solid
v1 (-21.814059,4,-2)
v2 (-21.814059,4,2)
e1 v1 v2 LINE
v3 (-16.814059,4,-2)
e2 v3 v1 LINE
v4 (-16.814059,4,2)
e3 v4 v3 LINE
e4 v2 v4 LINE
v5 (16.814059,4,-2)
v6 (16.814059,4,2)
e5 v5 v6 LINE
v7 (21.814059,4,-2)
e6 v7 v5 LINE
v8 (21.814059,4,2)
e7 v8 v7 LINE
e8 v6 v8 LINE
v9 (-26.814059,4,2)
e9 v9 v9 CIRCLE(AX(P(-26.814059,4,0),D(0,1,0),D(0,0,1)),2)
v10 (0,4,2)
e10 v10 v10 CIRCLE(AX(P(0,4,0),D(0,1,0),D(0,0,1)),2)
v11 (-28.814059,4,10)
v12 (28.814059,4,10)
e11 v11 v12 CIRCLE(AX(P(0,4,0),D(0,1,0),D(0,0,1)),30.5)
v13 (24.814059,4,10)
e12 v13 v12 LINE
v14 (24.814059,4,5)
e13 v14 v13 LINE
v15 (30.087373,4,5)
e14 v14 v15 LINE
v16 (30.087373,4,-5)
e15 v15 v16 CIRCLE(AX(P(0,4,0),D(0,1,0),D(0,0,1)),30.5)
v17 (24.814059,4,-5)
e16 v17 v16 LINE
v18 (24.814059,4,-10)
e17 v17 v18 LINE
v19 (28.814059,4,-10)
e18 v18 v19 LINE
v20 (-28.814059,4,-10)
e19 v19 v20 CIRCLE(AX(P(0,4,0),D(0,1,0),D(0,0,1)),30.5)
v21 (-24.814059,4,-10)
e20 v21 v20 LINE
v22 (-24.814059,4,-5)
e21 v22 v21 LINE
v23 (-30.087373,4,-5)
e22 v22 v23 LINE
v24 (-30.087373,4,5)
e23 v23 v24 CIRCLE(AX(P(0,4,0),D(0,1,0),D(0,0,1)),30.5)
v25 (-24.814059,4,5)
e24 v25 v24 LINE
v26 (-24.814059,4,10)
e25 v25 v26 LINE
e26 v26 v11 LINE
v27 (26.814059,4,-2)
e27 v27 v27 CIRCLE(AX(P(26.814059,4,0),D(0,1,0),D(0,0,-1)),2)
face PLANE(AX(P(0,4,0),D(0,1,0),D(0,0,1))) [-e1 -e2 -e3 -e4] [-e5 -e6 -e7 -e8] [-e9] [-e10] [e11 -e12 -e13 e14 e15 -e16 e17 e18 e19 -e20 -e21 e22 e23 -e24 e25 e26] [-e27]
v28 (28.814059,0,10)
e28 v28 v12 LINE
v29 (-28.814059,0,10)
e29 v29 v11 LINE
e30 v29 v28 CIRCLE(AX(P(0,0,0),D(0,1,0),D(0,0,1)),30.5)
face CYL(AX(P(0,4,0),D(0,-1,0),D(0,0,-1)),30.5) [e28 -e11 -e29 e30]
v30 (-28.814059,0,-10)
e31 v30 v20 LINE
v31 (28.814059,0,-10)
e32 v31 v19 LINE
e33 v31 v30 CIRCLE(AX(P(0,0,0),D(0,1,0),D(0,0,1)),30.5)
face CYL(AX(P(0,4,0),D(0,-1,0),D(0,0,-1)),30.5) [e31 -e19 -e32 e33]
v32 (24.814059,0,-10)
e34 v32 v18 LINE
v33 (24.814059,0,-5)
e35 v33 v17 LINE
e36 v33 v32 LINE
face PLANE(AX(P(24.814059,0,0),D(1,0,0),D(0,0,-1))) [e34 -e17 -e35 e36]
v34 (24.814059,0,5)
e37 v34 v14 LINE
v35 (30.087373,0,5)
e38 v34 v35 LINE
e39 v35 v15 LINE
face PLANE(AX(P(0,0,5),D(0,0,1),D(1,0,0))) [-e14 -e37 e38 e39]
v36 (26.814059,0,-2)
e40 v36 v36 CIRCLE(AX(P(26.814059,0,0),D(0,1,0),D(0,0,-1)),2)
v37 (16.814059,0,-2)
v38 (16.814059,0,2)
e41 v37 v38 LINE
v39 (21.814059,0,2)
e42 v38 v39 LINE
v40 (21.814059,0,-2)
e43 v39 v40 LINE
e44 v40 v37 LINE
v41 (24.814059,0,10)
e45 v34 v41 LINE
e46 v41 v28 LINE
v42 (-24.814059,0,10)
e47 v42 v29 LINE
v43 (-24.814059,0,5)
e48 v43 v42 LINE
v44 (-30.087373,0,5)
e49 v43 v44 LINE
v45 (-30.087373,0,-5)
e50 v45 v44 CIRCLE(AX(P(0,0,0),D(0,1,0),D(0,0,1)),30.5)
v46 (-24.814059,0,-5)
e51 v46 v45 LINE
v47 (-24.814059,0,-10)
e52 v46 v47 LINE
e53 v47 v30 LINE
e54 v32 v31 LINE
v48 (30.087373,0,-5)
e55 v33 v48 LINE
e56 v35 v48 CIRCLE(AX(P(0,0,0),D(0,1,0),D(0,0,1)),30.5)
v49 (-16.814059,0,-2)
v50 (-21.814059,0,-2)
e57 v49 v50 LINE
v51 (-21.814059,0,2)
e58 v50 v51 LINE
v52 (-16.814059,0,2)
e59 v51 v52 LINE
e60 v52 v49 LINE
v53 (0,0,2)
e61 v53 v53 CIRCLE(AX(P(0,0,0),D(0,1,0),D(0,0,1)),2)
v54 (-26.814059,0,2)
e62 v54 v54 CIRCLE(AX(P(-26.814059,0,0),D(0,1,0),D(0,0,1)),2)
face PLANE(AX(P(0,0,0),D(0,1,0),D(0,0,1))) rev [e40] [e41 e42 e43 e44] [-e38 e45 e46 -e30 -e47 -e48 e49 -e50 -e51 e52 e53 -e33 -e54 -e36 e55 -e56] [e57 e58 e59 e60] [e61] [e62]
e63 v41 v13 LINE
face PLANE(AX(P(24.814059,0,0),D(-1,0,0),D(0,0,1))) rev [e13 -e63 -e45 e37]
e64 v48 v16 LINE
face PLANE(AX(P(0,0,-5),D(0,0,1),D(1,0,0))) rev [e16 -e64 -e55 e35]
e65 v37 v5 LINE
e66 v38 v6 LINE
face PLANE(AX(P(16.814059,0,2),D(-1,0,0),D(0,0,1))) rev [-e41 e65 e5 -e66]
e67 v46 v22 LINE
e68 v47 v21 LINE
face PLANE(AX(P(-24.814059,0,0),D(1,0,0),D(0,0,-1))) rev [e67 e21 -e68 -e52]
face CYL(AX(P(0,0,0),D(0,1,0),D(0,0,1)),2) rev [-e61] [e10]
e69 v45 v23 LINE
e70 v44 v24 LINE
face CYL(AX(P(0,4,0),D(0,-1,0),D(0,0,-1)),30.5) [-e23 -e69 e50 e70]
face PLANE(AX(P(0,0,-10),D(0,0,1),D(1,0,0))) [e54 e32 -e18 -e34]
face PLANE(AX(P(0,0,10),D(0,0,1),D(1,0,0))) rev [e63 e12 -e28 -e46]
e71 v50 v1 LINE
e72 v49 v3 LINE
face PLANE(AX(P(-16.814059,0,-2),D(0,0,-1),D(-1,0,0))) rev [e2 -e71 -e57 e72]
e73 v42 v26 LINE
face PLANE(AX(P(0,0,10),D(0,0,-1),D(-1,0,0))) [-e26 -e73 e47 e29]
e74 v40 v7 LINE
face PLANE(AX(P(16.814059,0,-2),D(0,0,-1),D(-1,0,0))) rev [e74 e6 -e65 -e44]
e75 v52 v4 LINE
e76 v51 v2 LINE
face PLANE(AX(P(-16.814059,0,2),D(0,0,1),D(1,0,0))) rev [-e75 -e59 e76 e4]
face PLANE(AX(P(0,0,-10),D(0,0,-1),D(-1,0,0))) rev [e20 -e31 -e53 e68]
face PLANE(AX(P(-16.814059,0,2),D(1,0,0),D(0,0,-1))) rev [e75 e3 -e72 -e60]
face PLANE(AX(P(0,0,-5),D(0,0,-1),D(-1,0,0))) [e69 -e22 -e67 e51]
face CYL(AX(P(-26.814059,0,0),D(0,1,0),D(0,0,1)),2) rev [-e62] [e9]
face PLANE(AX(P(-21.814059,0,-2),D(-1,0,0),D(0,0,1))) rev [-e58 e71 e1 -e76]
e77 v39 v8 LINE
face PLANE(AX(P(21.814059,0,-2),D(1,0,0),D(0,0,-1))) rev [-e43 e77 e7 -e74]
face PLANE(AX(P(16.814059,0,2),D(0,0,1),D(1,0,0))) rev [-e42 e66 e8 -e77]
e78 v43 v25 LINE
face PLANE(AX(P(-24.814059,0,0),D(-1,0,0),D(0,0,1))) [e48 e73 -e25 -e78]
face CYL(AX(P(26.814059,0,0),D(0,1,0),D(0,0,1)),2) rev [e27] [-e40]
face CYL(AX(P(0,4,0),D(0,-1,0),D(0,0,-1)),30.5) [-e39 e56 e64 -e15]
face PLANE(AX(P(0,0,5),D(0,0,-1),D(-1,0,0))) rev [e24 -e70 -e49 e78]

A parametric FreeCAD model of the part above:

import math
import FreeCAD as App
import Part
import Sketcher
from FreeCAD import Vector

doc = App.newDocument("Part")
body = doc.addObject("PartDesign::Body", "Body")

# Sketch on XZ plane
sketch1 = body.newObject("Sketcher::SketchObject", "Sketch")
sketch1.AttachmentSupport = (doc.getObject("XZ_Plane"), [""])
sketch1.MapMode = "FlatFace"
sketch1.addGeometry(Part.Circle(Vector(0, 0, 0), Vector(0, 0, 1), 30), False)
sketch1.addConstraint([
    Sketcher.Constraint("Coincident", 0, 3, -1, 1),
    Sketcher.Constraint("Diameter", 0, 61.0),
])
pad1 = body.newObject("PartDesign::Pad", "Pad")
pad1.Profile = sketch1
pad1.Length = 4
pad1.Reversed = True

# Sketch on XZ plane
sketch2 = body.newObject("Sketcher::SketchObject", "Sketch001")
sketch2.AttachmentSupport = (doc.getObject("XZ_Plane"), [""])
sketch2.MapMode = "FlatFace"
sketch2.AttachmentOffset = App.Placement(Vector(0, 0, -4), App.Rotation())
sketch2.addGeometry(Part.Circle(Vector(0, 0, 0), Vector(0, 0, 1), 2), False)
sketch2.addConstraint([
    Sketcher.Constraint("Coincident", 0, 3, -1, 1),
    Sketcher.Constraint("Diameter", 0, 4.0),
])
pocket1 = body.newObject("PartDesign::Pocket", "Pocket")
pocket1.Profile = sketch2
pocket1.Length = 4
pocket1.Reversed = True

# Sketch on XZ plane
sketch3 = body.newObject("Sketcher::SketchObject", "Sketch002")
sketch3.AttachmentSupport = (doc.getObject("XZ_Plane"), [""])
sketch3.MapMode = "FlatFace"
sketch3.addGeometry([
    Part.ArcOfCircle(Part.Circle(Vector(0, 0, 0), Vector(0, 0, 1), 30.5), math.radians(-19.14), math.radians(-9.44)),  # 0
    Part.LineSegment(Vector(28.8, -10, 0), Vector(24.8, -10, 0)),  # 1
    Part.LineSegment(Vector(24.8, -10, 0), Vector(24.8, -5, 0)),  # 2
    Part.LineSegment(Vector(24.8, -5, 0), Vector(30.1, -5, 0)),  # 3
    Part.LineSegment(Vector(30.1, 5, 0), Vector(24.8, 5, 0)),  # 4
    Part.LineSegment(Vector(24.8, 5, 0), Vector(24.8, 10, 0)),  # 5
    Part.LineSegment(Vector(24.8, 10, 0), Vector(28.8, 10, 0)),  # 6
    Part.ArcOfCircle(Part.Circle(Vector(0, 0, 0), Vector(0, 0, 1), 30.5), math.radians(9.44), math.radians(19.14)),  # 7
    Part.LineSegment(Vector(-24.8, -5, 0), Vector(-24.8, -10, 0)),  # 8
    Part.LineSegment(Vector(-24.8, -10, 0), Vector(-28.8, -10, 0)),  # 9
    Part.ArcOfCircle(Part.Circle(Vector(0, 0, 0), Vector(0, 0, 1), 30.5), math.radians(-170.56), math.radians(-160.86)),  # 10
    Part.LineSegment(Vector(-30.1, -5, 0), Vector(-24.8, -5, 0)),  # 11
    Part.LineSegment(Vector(-28.8, 10, 0), Vector(-24.8, 10, 0)),  # 12
    Part.LineSegment(Vector(-24.8, 10, 0), Vector(-24.8, 5, 0)),  # 13
    Part.LineSegment(Vector(-24.8, 5, 0), Vector(-30.1, 5, 0)),  # 14
    Part.ArcOfCircle(Part.Circle(Vector(0, 0, 0), Vector(0, 0, 1), 30.5), math.radians(160.86), math.radians(170.56)),  # 15
], False)
sketch3.addConstraint([
    Sketcher.Constraint("Coincident", 0, 1, 1, 1),
    Sketcher.Constraint("Coincident", 1, 2, 2, 1),
    Sketcher.Constraint("Coincident", 2, 2, 3, 1),
    Sketcher.Constraint("Coincident", 3, 2, 0, 2),
    Sketcher.Constraint("Coincident", 4, 2, 5, 1),
    Sketcher.Constraint("Coincident", 5, 2, 6, 1),
    Sketcher.Constraint("Coincident", 6, 2, 7, 2),
    Sketcher.Constraint("Coincident", 7, 1, 4, 1),
    Sketcher.Constraint("Coincident", 8, 2, 9, 1),
    Sketcher.Constraint("Coincident", 9, 2, 10, 2),
    Sketcher.Constraint("Coincident", 10, 1, 11, 1),
    Sketcher.Constraint("Coincident", 11, 2, 8, 1),
    Sketcher.Constraint("Coincident", 12, 2, 13, 1),
    Sketcher.Constraint("Coincident", 13, 2, 14, 1),
    Sketcher.Constraint("Coincident", 14, 2, 15, 2),
    Sketcher.Constraint("Coincident", 15, 1, 12, 1),
    Sketcher.Constraint("Horizontal", 1),
    Sketcher.Constraint("Vertical", 2),
    Sketcher.Constraint("Horizontal", 3),
    Sketcher.Constraint("Horizontal", 4),
    Sketcher.Constraint("Vertical", 5),
    Sketcher.Constraint("Horizontal", 6),
    Sketcher.Constraint("Vertical", 8),
    Sketcher.Constraint("Horizontal", 9),
    Sketcher.Constraint("Horizontal", 11),
    Sketcher.Constraint("Horizontal", 12),
    Sketcher.Constraint("Vertical", 13),
    Sketcher.Constraint("Horizontal", 14),
    Sketcher.Constraint("Coincident", 0, 3, -1, 1),
    Sketcher.Constraint("Coincident", 7, 3, -1, 1),
    Sketcher.Constraint("Coincident", 10, 3, -1, 1),
    Sketcher.Constraint("Coincident", 15, 3, -1, 1),
    Sketcher.Constraint("Equal", 0, 7),
    Sketcher.Constraint("Equal", 7, 10),
    Sketcher.Constraint("Equal", 10, 15),
    Sketcher.Constraint("Symmetric", 5, 2, 8, 2, -1, 1),
    Sketcher.Constraint("Symmetric", 1, 2, 12, 2, -1, 1),
    Sketcher.Constraint("Symmetric", 1, 2, 8, 2, -2),
    Sketcher.Constraint("Horizontal", 3, 2, 10, 1),
    Sketcher.Constraint("Horizontal", 7, 1, 13, 2),
    Sketcher.Constraint("Vertical", 3, 2, 7, 1),
    Sketcher.Constraint("Radius", 0, 30.5),
    Sketcher.Constraint("DistanceX", 1, 2, 1, 1, 4.0),
    Sketcher.Constraint("DistanceY", 2, 1, 2, 2, 5.0),
    Sketcher.Constraint("DistanceY", 0, 1, -1, 1, 10.0),
])
pocket2 = body.newObject("PartDesign::Pocket", "Pocket001")
pocket2.Profile = sketch3
pocket2.Length = 4

# Sketch on XZ plane
sketch4 = body.newObject("Sketcher::SketchObject", "Sketch003")
sketch4.AttachmentSupport = (doc.getObject("XZ_Plane"), [""])
sketch4.MapMode = "FlatFace"
sketch4.AttachmentOffset = App.Placement(Vector(0, 0, -4), App.Rotation())
sketch4.addGeometry([
    Part.LineSegment(Vector(-21.8, -2, 0), Vector(-21.8, 2, 0)),  # 0
    Part.LineSegment(Vector(-21.8, 2, 0), Vector(-16.8, 2, 0)),  # 1
    Part.LineSegment(Vector(-16.8, 2, 0), Vector(-16.8, -2, 0)),  # 2
    Part.LineSegment(Vector(-16.8, -2, 0), Vector(-21.8, -2, 0)),  # 3
    Part.LineSegment(Vector(16.8, -2, 0), Vector(16.8, 2, 0)),  # 4
    Part.LineSegment(Vector(16.8, 2, 0), Vector(21.8, 2, 0)),  # 5
    Part.LineSegment(Vector(21.8, 2, 0), Vector(21.8, -2, 0)),  # 6
    Part.LineSegment(Vector(21.8, -2, 0), Vector(16.8, -2, 0)),  # 7
], False)
sketch4.addConstraint([
    Sketcher.Constraint("Coincident", 0, 2, 1, 1),
    Sketcher.Constraint("Coincident", 1, 2, 2, 1),
    Sketcher.Constraint("Coincident", 2, 2, 3, 1),
    Sketcher.Constraint("Coincident", 3, 2, 0, 1),
    Sketcher.Constraint("Coincident", 4, 2, 5, 1),
    Sketcher.Constraint("Coincident", 5, 2, 6, 1),
    Sketcher.Constraint("Coincident", 6, 2, 7, 1),
    Sketcher.Constraint("Coincident", 7, 2, 4, 1),
    Sketcher.Constraint("Vertical", 0),
    Sketcher.Constraint("Horizontal", 1),
    Sketcher.Constraint("Vertical", 2),
    Sketcher.Constraint("Horizontal", 3),
    Sketcher.Constraint("Vertical", 4),
    Sketcher.Constraint("Horizontal", 5),
    Sketcher.Constraint("Vertical", 6),
    Sketcher.Constraint("Horizontal", 7),
    Sketcher.Constraint("Symmetric", 2, 2, 4, 2, -1, 1),
    Sketcher.Constraint("Symmetric", 0, 2, 6, 2, -1, 1),
    Sketcher.Constraint("Horizontal", 1, 2, 4, 2),
    Sketcher.Constraint("DistanceX", 1, 1, 1, 2, 5.0),
    Sketcher.Constraint("DistanceY", 0, 1, 0, 2, 4.0),
    Sketcher.Constraint("DistanceX", 0, 2, -1, 1, 21.814059),
])
pocket3 = body.newObject("PartDesign::Pocket", "Pocket002")
pocket3.Profile = sketch4
pocket3.Length = 4
pocket3.Reversed = True

# Sketch on XZ plane
sketch5 = body.newObject("Sketcher::SketchObject", "Sketch004")
sketch5.AttachmentSupport = (doc.getObject("XZ_Plane"), [""])
sketch5.MapMode = "FlatFace"
sketch5.AttachmentOffset = App.Placement(Vector(0, 0, -4), App.Rotation())
sketch5.addGeometry([
    Part.Circle(Vector(-26.8, 0, 0), Vector(0, 0, 1), 2),
    Part.Circle(Vector(26.8, 0, 0), Vector(0, 0, 1), 2),
], False)
sketch5.addConstraint([
    Sketcher.Constraint("Equal", 0, 1),
    Sketcher.Constraint("Symmetric", 0, 3, 1, 3, -1, 1),
    Sketcher.Constraint("PointOnObject", 0, 3, -1),
    Sketcher.Constraint("Diameter", 0, 4.0),
    Sketcher.Constraint("DistanceX", 0, 3, -1, 1, 26.814059),
])
pocket4 = body.newObject("PartDesign::Pocket", "Pocket003")
pocket4.Profile = sketch5
pocket4.Length = 4
pocket4.Reversed = True

doc.recompute()
